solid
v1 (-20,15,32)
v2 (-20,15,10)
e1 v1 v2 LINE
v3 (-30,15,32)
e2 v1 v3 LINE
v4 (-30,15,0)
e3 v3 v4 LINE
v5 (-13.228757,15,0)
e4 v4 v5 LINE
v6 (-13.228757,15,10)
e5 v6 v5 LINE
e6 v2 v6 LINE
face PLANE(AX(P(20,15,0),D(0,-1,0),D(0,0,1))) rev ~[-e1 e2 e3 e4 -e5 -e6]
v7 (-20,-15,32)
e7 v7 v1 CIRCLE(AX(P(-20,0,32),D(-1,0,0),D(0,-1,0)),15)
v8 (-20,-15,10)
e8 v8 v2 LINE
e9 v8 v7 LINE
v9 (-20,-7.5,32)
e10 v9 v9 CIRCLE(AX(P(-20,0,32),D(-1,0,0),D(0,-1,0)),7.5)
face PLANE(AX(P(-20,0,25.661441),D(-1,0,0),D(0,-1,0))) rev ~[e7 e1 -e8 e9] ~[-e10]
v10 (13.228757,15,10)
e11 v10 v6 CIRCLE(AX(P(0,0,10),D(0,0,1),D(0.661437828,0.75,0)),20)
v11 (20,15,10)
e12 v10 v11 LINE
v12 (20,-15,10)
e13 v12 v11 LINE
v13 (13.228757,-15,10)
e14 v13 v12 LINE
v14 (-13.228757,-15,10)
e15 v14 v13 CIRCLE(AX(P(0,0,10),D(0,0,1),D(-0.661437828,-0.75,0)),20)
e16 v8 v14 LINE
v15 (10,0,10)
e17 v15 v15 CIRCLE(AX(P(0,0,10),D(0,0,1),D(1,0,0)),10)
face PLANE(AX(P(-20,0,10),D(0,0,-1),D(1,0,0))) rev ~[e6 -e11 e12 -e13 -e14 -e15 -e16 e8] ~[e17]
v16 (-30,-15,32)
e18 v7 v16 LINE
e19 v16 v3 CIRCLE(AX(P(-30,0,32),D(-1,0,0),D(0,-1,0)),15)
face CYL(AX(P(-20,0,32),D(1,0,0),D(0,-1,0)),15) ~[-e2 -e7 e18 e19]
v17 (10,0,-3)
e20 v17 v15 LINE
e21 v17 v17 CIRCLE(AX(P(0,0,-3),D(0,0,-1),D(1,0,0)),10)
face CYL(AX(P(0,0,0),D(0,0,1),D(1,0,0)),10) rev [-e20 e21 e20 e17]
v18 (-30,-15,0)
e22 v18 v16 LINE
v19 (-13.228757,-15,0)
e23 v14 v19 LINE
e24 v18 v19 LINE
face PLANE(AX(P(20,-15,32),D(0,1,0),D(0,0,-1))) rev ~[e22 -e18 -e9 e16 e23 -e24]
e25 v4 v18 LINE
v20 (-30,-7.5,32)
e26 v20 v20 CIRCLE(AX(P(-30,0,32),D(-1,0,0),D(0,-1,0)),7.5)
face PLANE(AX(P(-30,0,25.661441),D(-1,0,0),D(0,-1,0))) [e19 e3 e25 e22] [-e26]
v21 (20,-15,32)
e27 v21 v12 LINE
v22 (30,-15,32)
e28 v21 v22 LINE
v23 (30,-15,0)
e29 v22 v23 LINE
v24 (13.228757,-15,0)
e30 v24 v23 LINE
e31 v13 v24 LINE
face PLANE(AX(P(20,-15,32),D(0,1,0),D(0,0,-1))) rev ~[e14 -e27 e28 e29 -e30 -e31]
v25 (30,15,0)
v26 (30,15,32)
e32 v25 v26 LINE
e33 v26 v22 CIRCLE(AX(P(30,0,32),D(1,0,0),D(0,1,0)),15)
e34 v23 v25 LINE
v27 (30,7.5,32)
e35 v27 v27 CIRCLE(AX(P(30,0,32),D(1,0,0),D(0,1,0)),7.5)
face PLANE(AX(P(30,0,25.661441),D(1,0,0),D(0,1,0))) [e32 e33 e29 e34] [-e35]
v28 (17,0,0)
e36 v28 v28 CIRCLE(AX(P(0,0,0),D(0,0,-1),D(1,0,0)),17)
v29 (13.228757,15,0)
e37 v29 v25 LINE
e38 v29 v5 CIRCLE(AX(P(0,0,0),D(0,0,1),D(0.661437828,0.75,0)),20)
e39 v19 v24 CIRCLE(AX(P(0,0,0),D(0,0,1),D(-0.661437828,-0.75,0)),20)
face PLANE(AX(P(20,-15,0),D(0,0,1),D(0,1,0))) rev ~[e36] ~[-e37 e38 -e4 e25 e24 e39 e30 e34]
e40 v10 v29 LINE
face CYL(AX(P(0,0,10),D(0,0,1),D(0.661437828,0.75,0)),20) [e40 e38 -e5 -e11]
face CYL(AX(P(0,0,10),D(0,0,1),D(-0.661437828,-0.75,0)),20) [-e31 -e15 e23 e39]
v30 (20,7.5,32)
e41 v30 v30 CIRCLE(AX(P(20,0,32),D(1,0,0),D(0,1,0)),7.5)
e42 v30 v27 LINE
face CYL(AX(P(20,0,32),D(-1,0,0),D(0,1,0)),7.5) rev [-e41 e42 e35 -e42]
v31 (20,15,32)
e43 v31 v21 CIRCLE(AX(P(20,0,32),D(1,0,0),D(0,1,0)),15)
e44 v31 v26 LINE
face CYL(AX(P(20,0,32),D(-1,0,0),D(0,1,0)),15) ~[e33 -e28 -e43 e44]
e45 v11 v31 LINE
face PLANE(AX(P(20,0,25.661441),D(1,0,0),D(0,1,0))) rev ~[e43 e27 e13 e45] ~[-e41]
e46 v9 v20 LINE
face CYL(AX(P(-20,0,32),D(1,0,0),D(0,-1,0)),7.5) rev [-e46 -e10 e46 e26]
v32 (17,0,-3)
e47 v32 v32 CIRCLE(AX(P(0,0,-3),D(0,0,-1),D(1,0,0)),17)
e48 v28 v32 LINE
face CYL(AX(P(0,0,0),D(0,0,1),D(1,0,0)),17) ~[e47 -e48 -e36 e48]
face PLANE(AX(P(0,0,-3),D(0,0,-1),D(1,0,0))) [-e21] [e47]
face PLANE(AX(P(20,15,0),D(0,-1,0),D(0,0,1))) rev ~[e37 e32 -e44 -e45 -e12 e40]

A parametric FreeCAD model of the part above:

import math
import FreeCAD as App
import Part
import Sketcher
from FreeCAD import Vector


def add_polygon(sketch, points):
    """Adds a closed chain of lines whose ends are joined by coincident constraints."""
    first, n = sketch.GeometryCount, len(points)
    for a, b in zip(points, points[1:] + points[:1]):
        sketch.addGeometry(Part.LineSegment(App.Vector(*a, 0), App.Vector(*b, 0)), False)
    for i in range(n):
        sketch.addConstraint(Sketcher.Constraint("Coincident", first + i, 2, first + (i + 1) % n, 1))

doc = App.newDocument("Part")
params = doc.addObject("Spreadsheet::Sheet", "Params")
for row, (alias, value) in enumerate([
    ("sketch1_width", "40 mm"),
    ("sketch1_height", "10 mm"),
    ("pad1_length", "30 mm"),
    ("sketch2_diameter", "15 mm"),
    ("sketch2_radius", "15 mm"),
    ("sketch2_height", "32 mm"),
    ("pad2_length", "10 mm"),
    ("sketch3_diameter", "15 mm"),
    ("sketch3_radius", "15 mm"),
    ("sketch3_height", "32 mm"),
    ("pad3_length", "10 mm"),
    ("sketch4_radius", "20 mm"),
    ("pad4_length", "10 mm"),
    ("sketch5_diameter", "20 mm"),
    ("sketch6_diameter", "34 mm"),
    ("sketch6_diameter2", "20 mm"),
    ("pad5_length", "3 mm"),
], start=1):
    params.set(f"A{row}", alias)
    params.set(f"B{row}", "=" + value)
    params.setAlias(f"B{row}", alias)

body = doc.addObject("PartDesign::Body", "Body")

# Sketch on XZ plane
sketch1 = body.newObject("Sketcher::SketchObject", "Sketch")
sketch1.AttachmentSupport = (doc.getObject("XZ_Plane"), [""])
sketch1.MapMode = "FlatFace"
add_polygon(sketch1, [(-20, 10), (-20, 0), (20, 0), (20, 10)])  # lines 0-3
sketch1.addConstraint(Sketcher.Constraint("Vertical", 0))
sketch1.addConstraint(Sketcher.Constraint("Horizontal", 1))
sketch1.addConstraint(Sketcher.Constraint("Vertical", 2))
sketch1.addConstraint(Sketcher.Constraint("Horizontal", 3))
sketch1.addConstraint(Sketcher.Constraint("Symmetric", 0, 2, 1, 2, -1, 1))
sketch1.addConstraint(Sketcher.Constraint("DistanceX", 1, 1, 1, 2, 40.0))
sketch1.addConstraint(Sketcher.Constraint("DistanceY", 0, 2, 0, 1, 10.0))
sketch1.setExpression("Constraints[9]", "Params.sketch1_width")
sketch1.setExpression("Constraints[10]", "Params.sketch1_height")
pad1 = body.newObject("PartDesign::Pad", "Pad")
pad1.Profile = sketch1
pad1.setExpression("Length", "Params.pad1_length")
pad1.Midplane = True

# Sketch on YZ plane
sketch2 = body.newObject("Sketcher::SketchObject", "Sketch001")
sketch2.AttachmentSupport = (doc.getObject("YZ_Plane"), [""])
sketch2.MapMode = "FlatFace"
sketch2.AttachmentOffset = App.Placement(Vector(0, 0, -20), App.Rotation())
sketch2.addGeometry(Part.LineSegment(Vector(15, 32, 0), Vector(15, 0, 0)), False)
sketch2.addGeometry(Part.LineSegment(Vector(15, 0, 0), Vector(-15, 0, 0)), False)
sketch2.addGeometry(Part.LineSegment(Vector(-15, 0, 0), Vector(-15, 32, 0)), False)
sketch2.addGeometry(Part.ArcOfCircle(Part.Circle(Vector(0, 32, 0), Vector(0, 0, 1), 15), math.radians(0), math.radians(180)), False)
sketch2.addGeometry(Part.Circle(Vector(0, 32, 0), Vector(0, 0, 1), 8), False)
sketch2.addConstraint(Sketcher.Constraint("Coincident", 0, 2, 1, 1))
sketch2.addConstraint(Sketcher.Constraint("Coincident", 1, 2, 2, 1))
sketch2.addConstraint(Sketcher.Constraint("Tangent", 2, 2, 3, 2))
sketch2.addConstraint(Sketcher.Constraint("Tangent", 3, 1, 0, 1))
sketch2.addConstraint(Sketcher.Constraint("Vertical", 0))
sketch2.addConstraint(Sketcher.Constraint("Horizontal", 1))
sketch2.addConstraint(Sketcher.Constraint("Vertical", 2))
sketch2.addConstraint(Sketcher.Constraint("Coincident", 4, 3, 3, 3))
sketch2.addConstraint(Sketcher.Constraint("Symmetric", 0, 2, 1, 2, -1, 1))
sketch2.addConstraint(Sketcher.Constraint("Diameter", 4, 15.0))
sketch2.addConstraint(Sketcher.Constraint("Radius", 3, 15.0))
sketch2.addConstraint(Sketcher.Constraint("DistanceY", 0, 2, 0, 1, 32.0))
sketch2.setExpression("Constraints[9]", "Params.sketch2_diameter")
sketch2.setExpression("Constraints[10]", "Params.sketch2_radius")
sketch2.setExpression("Constraints[11]", "Params.sketch2_height")
pad2 = body.newObject("PartDesign::Pad", "Pad001")
pad2.Profile = sketch2
pad2.setExpression("Length", "Params.pad2_length")
pad2.Reversed = True

# Sketch on YZ plane
sketch3 = body.newObject("Sketcher::SketchObject", "Sketch002")
sketch3.AttachmentSupport = (doc.getObject("YZ_Plane"), [""])
sketch3.MapMode = "FlatFace"
sketch3.AttachmentOffset = App.Placement(Vector(0, 0, 20), App.Rotation())
sketch3.addGeometry(Part.LineSegment(Vector(-15, 32, 0), Vector(-15, 0, 0)), False)
sketch3.addGeometry(Part.LineSegment(Vector(-15, 0, 0), Vector(15, 0, 0)), False)
sketch3.addGeometry(Part.LineSegment(Vector(15, 0, 0), Vector(15, 32, 0)), False)
sketch3.addGeometry(Part.ArcOfCircle(Part.Circle(Vector(0, 32, 0), Vector(0, 0, 1), 15), math.radians(0), math.radians(180)), False)
sketch3.addGeometry(Part.Circle(Vector(0, 32, 0), Vector(0, 0, 1), 8), False)
sketch3.addConstraint(Sketcher.Constraint("Coincident", 0, 2, 1, 1))
sketch3.addConstraint(Sketcher.Constraint("Coincident", 1, 2, 2, 1))
sketch3.addConstraint(Sketcher.Constraint("Tangent", 2, 2, 3, 1))
sketch3.addConstraint(Sketcher.Constraint("Tangent", 3, 2, 0, 1))
sketch3.addConstraint(Sketcher.Constraint("Vertical", 0))
sketch3.addConstraint(Sketcher.Constraint("Horizontal", 1))
sketch3.addConstraint(Sketcher.Constraint("Vertical", 2))
sketch3.addConstraint(Sketcher.Constraint("Coincident", 4, 3, 3, 3))
sketch3.addConstraint(Sketcher.Constraint("Symmetric", 0, 2, 1, 2, -1, 1))
sketch3.addConstraint(Sketcher.Constraint("Diameter", 4, 15.0))
sketch3.addConstraint(Sketcher.Constraint("Radius", 3, 15.0))
sketch3.addConstraint(Sketcher.Constraint("DistanceY", 0, 2, 0, 1, 32.0))
sketch3.setExpression("Constraints[9]", "Params.sketch3_diameter")
sketch3.setExpression("Constraints[10]", "Params.sketch3_radius")
sketch3.setExpression("Constraints[11]", "Params.sketch3_height")
pad3 = body.newObject("PartDesign::Pad", "Pad002")
pad3.Profile = sketch3
pad3.setExpression("Length", "Params.pad3_length")

# Sketch on XY plane
sketch4 = body.newObject("Sketcher::SketchObject", "Sketch003")
sketch4.AttachmentSupport = (doc.getObject("XY_Plane"), [""])
sketch4.MapMode = "FlatFace"
sketch4.AttachmentOffset = App.Placement(Vector(0, 0, 10), App.Rotation())
sketch4.addGeometry(Part.ArcOfCircle(Part.Circle(Vector(0, 0, 0), Vector(0, 0, 1), 20), math.radians(49), math.radians(131)), False)
sketch4.addGeometry(Part.LineSegment(Vector(-13, 15, 0), Vector(13, 15, 0)), False)
sketch4.addGeometry(Part.LineSegment(Vector(13, -15, 0), Vector(-13, -15, 0)), False)
sketch4.addGeometry(Part.ArcOfCircle(Part.Circle(Vector(0, 0, 0), Vector(0, 0, 1), 20), math.radians(-131), math.radians(-49)), False)
sketch4.addConstraint(Sketcher.Constraint("Coincident", 0, 1, 1, 2))
sketch4.addConstraint(Sketcher.Constraint("Coincident", 1, 1, 0, 2))
sketch4.addConstraint(Sketcher.Constraint("Coincident", 2, 1, 3, 2))
sketch4.addConstraint(Sketcher.Constraint("Coincident", 3, 1, 2, 2))
sketch4.addConstraint(Sketcher.Constraint("Horizontal", 1))
sketch4.addConstraint(Sketcher.Constraint("Horizontal", 2))
sketch4.addConstraint(Sketcher.Constraint("Coincident", 0, 3, -1, 1))
sketch4.addConstraint(Sketcher.Constraint("Coincident", 3, 3, -1, 1))
sketch4.addConstraint(Sketcher.Constraint("Equal", 0, 3))
sketch4.addConstraint(Sketcher.Constraint("Vertical", 0, 1, 2, 1))
sketch4.addConstraint(Sketcher.Constraint("Radius", 0, 20.0))
sketch4.addConstraint(Sketcher.Constraint("DistanceY", -1, 1, 0, 1, 15.0))
sketch4.setExpression("Constraints[10]", "Params.sketch4_radius")
pad4 = body.newObject("PartDesign::Pad", "Pad003")
pad4.Profile = sketch4
pad4.setExpression("Length", "Params.pad4_length")
pad4.Reversed = True

# Sketch on XY plane
sketch5 = body.newObject("Sketcher::SketchObject", "Sketch004")
sketch5.AttachmentSupport = (doc.getObject("XY_Plane"), [""])
sketch5.MapMode = "FlatFace"
sketch5.AttachmentOffset = App.Placement(Vector(0, 0, 10), App.Rotation())
sketch5.addGeometry(Part.Circle(Vector(0, 0, 0), Vector(0, 0, 1), 10), False)
sketch5.addConstraint(Sketcher.Constraint("Coincident", 0, 3, -1, 1))
sketch5.addConstraint(Sketcher.Constraint("Diameter", 0, 20.0))
sketch5.setExpression("Constraints[1]", "Params.sketch5_diameter")
pocket1 = body.newObject("PartDesign::Pocket", "Pocket")
pocket1.Profile = sketch5
pocket1.Type = "ThroughAll"

# Sketch on XY plane
sketch6 = body.newObject("Sketcher::SketchObject", "Sketch005")
sketch6.AttachmentSupport = (doc.getObject("XY_Plane"), [""])
sketch6.MapMode = "FlatFace"
sketch6.addGeometry(Part.Circle(Vector(0, 0, 0), Vector(0, 0, 1), 17), False)
sketch6.addGeometry(Part.Circle(Vector(0, 0, 0), Vector(0, 0, 1), 10), False)
sketch6.addConstraint(Sketcher.Constraint("Coincident", 0, 3, -1, 1))
sketch6.addConstraint(Sketcher.Constraint("Coincident", 1, 3, -1, 1))
sketch6.addConstraint(Sketcher.Constraint("Diameter", 0, 34.0))
sketch6.addConstraint(Sketcher.Constraint("Diameter", 1, 20.0))
sketch6.setExpression("Constraints[2]", "Params.sketch6_diameter")
sketch6.setExpression("Constraints[3]", "Params.sketch6_diameter2")
pad5 = body.newObject("PartDesign::Pad", "Pad004")
pad5.Profile = sketch6
pad5.setExpression("Length", "Params.pad5_length")
pad5.Reversed = True

doc.recompute()
